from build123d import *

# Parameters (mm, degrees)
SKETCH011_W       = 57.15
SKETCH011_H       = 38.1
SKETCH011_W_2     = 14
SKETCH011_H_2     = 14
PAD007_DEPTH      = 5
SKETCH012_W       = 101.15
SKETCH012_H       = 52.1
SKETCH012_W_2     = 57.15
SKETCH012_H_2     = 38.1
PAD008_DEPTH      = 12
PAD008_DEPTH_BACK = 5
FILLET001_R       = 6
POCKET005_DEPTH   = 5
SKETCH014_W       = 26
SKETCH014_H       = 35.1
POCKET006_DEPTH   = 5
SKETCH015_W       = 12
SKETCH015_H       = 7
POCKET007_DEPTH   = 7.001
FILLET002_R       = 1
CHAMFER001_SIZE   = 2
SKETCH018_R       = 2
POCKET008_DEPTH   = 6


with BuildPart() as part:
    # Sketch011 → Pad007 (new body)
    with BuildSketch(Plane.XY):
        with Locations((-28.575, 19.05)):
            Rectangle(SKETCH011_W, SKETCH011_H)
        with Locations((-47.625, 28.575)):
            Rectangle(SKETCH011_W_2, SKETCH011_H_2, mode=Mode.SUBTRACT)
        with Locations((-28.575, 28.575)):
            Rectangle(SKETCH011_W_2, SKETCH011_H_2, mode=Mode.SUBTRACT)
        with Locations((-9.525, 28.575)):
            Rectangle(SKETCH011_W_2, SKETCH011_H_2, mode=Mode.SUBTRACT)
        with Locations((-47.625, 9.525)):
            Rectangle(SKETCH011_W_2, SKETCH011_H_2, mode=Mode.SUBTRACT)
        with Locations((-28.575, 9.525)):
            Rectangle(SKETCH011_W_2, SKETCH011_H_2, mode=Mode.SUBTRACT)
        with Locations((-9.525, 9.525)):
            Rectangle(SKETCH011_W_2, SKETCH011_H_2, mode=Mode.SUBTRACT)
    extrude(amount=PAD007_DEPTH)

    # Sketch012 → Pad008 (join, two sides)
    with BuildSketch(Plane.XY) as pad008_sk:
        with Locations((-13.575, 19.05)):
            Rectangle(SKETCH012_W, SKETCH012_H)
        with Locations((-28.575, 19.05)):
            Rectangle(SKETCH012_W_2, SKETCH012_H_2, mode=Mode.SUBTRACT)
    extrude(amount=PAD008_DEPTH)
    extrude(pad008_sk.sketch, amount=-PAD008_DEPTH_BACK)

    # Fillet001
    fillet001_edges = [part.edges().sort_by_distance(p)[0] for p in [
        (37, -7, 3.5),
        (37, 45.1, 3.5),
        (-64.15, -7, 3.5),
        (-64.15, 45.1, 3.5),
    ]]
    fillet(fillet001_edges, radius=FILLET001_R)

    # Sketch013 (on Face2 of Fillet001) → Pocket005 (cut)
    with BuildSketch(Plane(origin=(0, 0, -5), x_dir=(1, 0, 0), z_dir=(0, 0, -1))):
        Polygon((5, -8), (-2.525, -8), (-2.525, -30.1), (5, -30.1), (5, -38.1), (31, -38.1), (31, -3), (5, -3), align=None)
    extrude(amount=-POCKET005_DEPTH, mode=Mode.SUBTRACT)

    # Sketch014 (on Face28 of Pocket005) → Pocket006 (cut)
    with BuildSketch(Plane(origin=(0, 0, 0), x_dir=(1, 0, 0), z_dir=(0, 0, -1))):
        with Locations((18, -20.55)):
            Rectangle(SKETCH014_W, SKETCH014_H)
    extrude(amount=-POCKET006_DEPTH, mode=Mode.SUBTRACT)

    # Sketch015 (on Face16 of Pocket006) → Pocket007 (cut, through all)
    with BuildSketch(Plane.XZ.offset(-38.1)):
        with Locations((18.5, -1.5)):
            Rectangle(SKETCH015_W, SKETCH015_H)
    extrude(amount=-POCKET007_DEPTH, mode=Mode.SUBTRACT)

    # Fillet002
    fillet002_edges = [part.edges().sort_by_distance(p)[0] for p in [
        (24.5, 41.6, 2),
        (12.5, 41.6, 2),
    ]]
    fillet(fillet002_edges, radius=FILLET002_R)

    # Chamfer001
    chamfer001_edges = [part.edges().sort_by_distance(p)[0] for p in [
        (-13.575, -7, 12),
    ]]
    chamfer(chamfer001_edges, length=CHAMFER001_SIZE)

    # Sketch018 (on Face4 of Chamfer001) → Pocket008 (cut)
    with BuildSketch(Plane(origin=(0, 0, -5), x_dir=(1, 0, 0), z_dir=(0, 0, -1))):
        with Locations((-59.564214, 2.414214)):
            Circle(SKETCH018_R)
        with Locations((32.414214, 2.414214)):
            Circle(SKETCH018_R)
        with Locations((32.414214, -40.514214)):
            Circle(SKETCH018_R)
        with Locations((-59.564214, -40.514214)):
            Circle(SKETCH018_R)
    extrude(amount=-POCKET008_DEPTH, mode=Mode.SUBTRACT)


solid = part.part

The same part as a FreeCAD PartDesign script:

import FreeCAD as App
import Part
import Sketcher

V = App.Vector
Q = App.Units.Quantity


def edges_at(feature, points):
    """Names of the edges that pass closest to the given points."""
    edges = feature.Shape.Edges
    near = lambda p: min(range(len(edges)), key=lambda i: edges[i].distToShape(Part.Vertex(*p))[0])
    return sorted({f"Edge{near(p) + 1}" for p in points})

doc = App.newDocument("Part")
body = doc.addObject("PartDesign::Body", "Body")

# Sketch on XY plane
sketch1 = body.newObject("Sketcher::SketchObject", "Sketch")
sketch1.AttachmentSupport = (doc.getObject("XY_Plane"), [""])
sketch1.MapMode = "FlatFace"
sketch1.addGeometry([
    Part.LineSegment(V(-57, 38, 0), V(-57, 0, 0)),  # 0
    Part.LineSegment(V(-57, 0, 0), V(0, 0, 0)),  # 1
    Part.LineSegment(V(0, 0, 0), V(0, 38, 0)),  # 2
    Part.LineSegment(V(0, 38, 0), V(-57, 38, 0)),  # 3
    Part.LineSegment(V(-41, 3, 0), V(-55, 3, 0)),  # 4
    Part.LineSegment(V(-55, 3, 0), V(-55, 17, 0)),  # 5
    Part.LineSegment(V(-55, 17, 0), V(-41, 17, 0)),  # 6
    Part.LineSegment(V(-41, 17, 0), V(-41, 3, 0)),  # 7
    Part.LineSegment(V(-22, 3, 0), V(-36, 3, 0)),  # 8
    Part.LineSegment(V(-36, 3, 0), V(-36, 17, 0)),  # 9
    Part.LineSegment(V(-36, 17, 0), V(-22, 17, 0)),  # 10
    Part.LineSegment(V(-22, 17, 0), V(-22, 3, 0)),  # 11
    Part.LineSegment(V(-3, 3, 0), V(-17, 3, 0)),  # 12
    Part.LineSegment(V(-17, 3, 0), V(-17, 17, 0)),  # 13
    Part.LineSegment(V(-17, 17, 0), V(-3, 17, 0)),  # 14
    Part.LineSegment(V(-3, 17, 0), V(-3, 3, 0)),  # 15
    Part.LineSegment(V(-41, 22, 0), V(-55, 22, 0)),  # 16
    Part.LineSegment(V(-55, 22, 0), V(-55, 36, 0)),  # 17
    Part.LineSegment(V(-55, 36, 0), V(-41, 36, 0)),  # 18
    Part.LineSegment(V(-41, 36, 0), V(-41, 22, 0)),  # 19
    Part.LineSegment(V(-22, 22, 0), V(-36, 22, 0)),  # 20
    Part.LineSegment(V(-36, 22, 0), V(-36, 36, 0)),  # 21
    Part.LineSegment(V(-36, 36, 0), V(-22, 36, 0)),  # 22
    Part.LineSegment(V(-22, 36, 0), V(-22, 22, 0)),  # 23
    Part.LineSegment(V(-3, 22, 0), V(-17, 22, 0)),  # 24
    Part.LineSegment(V(-17, 22, 0), V(-17, 36, 0)),  # 25
    Part.LineSegment(V(-17, 36, 0), V(-3, 36, 0)),  # 26
    Part.LineSegment(V(-3, 36, 0), V(-3, 22, 0)),  # 27
], False)
sketch1.addConstraint([
    Sketcher.Constraint("Coincident", 0, 2, 1, 1),
    Sketcher.Constraint("Coincident", 1, 2, 2, 1),
    Sketcher.Constraint("Coincident", 2, 2, 3, 1),
    Sketcher.Constraint("Coincident", 3, 2, 0, 1),
    Sketcher.Constraint("Coincident", 4, 2, 5, 1),
    Sketcher.Constraint("Coincident", 5, 2, 6, 1),
    Sketcher.Constraint("Coincident", 6, 2, 7, 1),
    Sketcher.Constraint("Coincident", 7, 2, 4, 1),
    Sketcher.Constraint("Coincident", 8, 2, 9, 1),
    Sketcher.Constraint("Coincident", 9, 2, 10, 1),
    Sketcher.Constraint("Coincident", 10, 2, 11, 1),
    Sketcher.Constraint("Coincident", 11, 2, 8, 1),
    Sketcher.Constraint("Coincident", 12, 2, 13, 1),
    Sketcher.Constraint("Coincident", 13, 2, 14, 1),
    Sketcher.Constraint("Coincident", 14, 2, 15, 1),
    Sketcher.Constraint("Coincident", 15, 2, 12, 1),
    Sketcher.Constraint("Coincident", 16, 2, 17, 1),
    Sketcher.Constraint("Coincident", 17, 2, 18, 1),
    Sketcher.Constraint("Coincident", 18, 2, 19, 1),
    Sketcher.Constraint("Coincident", 19, 2, 16, 1),
    Sketcher.Constraint("Coincident", 20, 2, 21, 1),
    Sketcher.Constraint("Coincident", 21, 2, 22, 1),
    Sketcher.Constraint("Coincident", 22, 2, 23, 1),
    Sketcher.Constraint("Coincident", 23, 2, 20, 1),
    Sketcher.Constraint("Coincident", 24, 2, 25, 1),
    Sketcher.Constraint("Coincident", 25, 2, 26, 1),
    Sketcher.Constraint("Coincident", 26, 2, 27, 1),
    Sketcher.Constraint("Coincident", 27, 2, 24, 1),
    Sketcher.Constraint("Vertical", 0),
    Sketcher.Constraint("Horizontal", 1),
    Sketcher.Constraint("Vertical", 2),
    Sketcher.Constraint("Horizontal", 3),
    Sketcher.Constraint("Horizontal", 4),
    Sketcher.Constraint("Vertical", 5),
    Sketcher.Constraint("Horizontal", 6),
    Sketcher.Constraint("Vertical", 7),
    Sketcher.Constraint("Horizontal", 8),
    Sketcher.Constraint("Vertical", 9),
    Sketcher.Constraint("Horizontal", 10),
    Sketcher.Constraint("Vertical", 11),
    Sketcher.Constraint("Horizontal", 12),
    Sketcher.Constraint("Vertical", 13),
    Sketcher.Constraint("Horizontal", 14),
    Sketcher.Constraint("Vertical", 15),
    Sketcher.Constraint("Horizontal", 16),
    Sketcher.Constraint("Vertical", 17),
    Sketcher.Constraint("Horizontal", 18),
    Sketcher.Constraint("Vertical", 19),
    Sketcher.Constraint("Horizontal", 20),
    Sketcher.Constraint("Vertical", 21),
    Sketcher.Constraint("Horizontal", 22),
    Sketcher.Constraint("Vertical", 23),
    Sketcher.Constraint("Horizontal", 24),
    Sketcher.Constraint("Vertical", 25),
    Sketcher.Constraint("Horizontal", 26),
    Sketcher.Constraint("Vertical", 27),
    Sketcher.Constraint("Coincident", 1, 2, -1, 1),
    Sketcher.Constraint("Horizontal", 7, 2, 8, 2),
    Sketcher.Constraint("Horizontal", 6, 2, 9, 2),
    Sketcher.Constraint("Horizontal", 11, 2, 12, 2),
    Sketcher.Constraint("Horizontal", 10, 2, 13, 2),
    Sketcher.Constraint("Horizontal", 19, 2, 20, 2),
    Sketcher.Constraint("Horizontal", 18, 2, 21, 2),
    Sketcher.Constraint("Horizontal", 23, 2, 24, 2),
    Sketcher.Constraint("Horizontal", 22, 2, 25, 2),
    Sketcher.Constraint("Vertical", 5, 2, 16, 2),
    Sketcher.Constraint("Vertical", 7, 2, 18, 2),
    Sketcher.Constraint("Vertical", 9, 2, 20, 2),
    Sketcher.Constraint("Vertical", 11, 2, 22, 2),
    Sketcher.Constraint("Vertical", 13, 2, 24, 2),
    Sketcher.Constraint("Vertical", 15, 2, 26, 2),
    Sketcher.Constraint("Equal", 6, 8),
    Sketcher.Constraint("Equal", 10, 12),
    Sketcher.Constraint("Equal", 26, 5),
    Sketcher.Constraint("Equal", 15, 17),
    Sketcher.Constraint("DistanceX", 4, 2, 4, 1, Q("14 mm")),
    Sketcher.Constraint("DistanceY", 0, 2, 0, 1, Q("38.1 mm")),
    Sketcher.Constraint("DistanceX", 1, 1, 1, 2, Q("57.15 mm")),
    Sketcher.Constraint("DistanceX", 7, 2, 8, 2, Q("5.05 mm")),
    Sketcher.Constraint("DistanceX", 11, 2, 12, 2, Q("5.05 mm")),
    Sketcher.Constraint("DistanceY", 5, 2, 16, 2, Q("5.05 mm")),
    Sketcher.Constraint("DistanceX", 4, 2, -1, 1, Q("54.625 mm")),
    Sketcher.Constraint("DistanceY", -1, 1, 4, 2, Q("2.525 mm")),
])
pad1 = body.newObject("PartDesign::Pad", "Pad")
pad1.Profile = sketch1
pad1.Length = 5

# Sketch on XY plane
sketch2 = body.newObject("Sketcher::SketchObject", "Sketch001")
sketch2.AttachmentSupport = (doc.getObject("XY_Plane"), [""])
sketch2.MapMode = "FlatFace"
sketch2.addGeometry([
    Part.LineSegment(V(-64, 45, 0), V(-64, -7, 0)),  # 0
    Part.LineSegment(V(-64, -7, 0), V(37, -7, 0)),  # 1
    Part.LineSegment(V(37, -7, 0), V(37, 45, 0)),  # 2
    Part.LineSegment(V(37, 45, 0), V(-64, 45, 0)),  # 3
    Part.LineSegment(V(0, 0, 0), V(-57, 0, 0)),  # 4
    Part.LineSegment(V(-57, 0, 0), V(-57, 38, 0)),  # 5
    Part.LineSegment(V(-57, 38, 0), V(0, 38, 0)),  # 6
    Part.LineSegment(V(0, 38, 0), V(0, 0, 0)),  # 7
], False)
sketch2.addConstraint([
    Sketcher.Constraint("Coincident", 0, 2, 1, 1),
    Sketcher.Constraint("Coincident", 1, 2, 2, 1),
    Sketcher.Constraint("Coincident", 2, 2, 3, 1),
    Sketcher.Constraint("Coincident", 3, 2, 0, 1),
    Sketcher.Constraint("Coincident", 4, 2, 5, 1),
    Sketcher.Constraint("Coincident", 5, 2, 6, 1),
    Sketcher.Constraint("Coincident", 6, 2, 7, 1),
    Sketcher.Constraint("Coincident", 7, 2, 4, 1),
    Sketcher.Constraint("Vertical", 0),
    Sketcher.Constraint("Horizontal", 1),
    Sketcher.Constraint("Vertical", 2),
    Sketcher.Constraint("Horizontal", 3),
    Sketcher.Constraint("Horizontal", 4),
    Sketcher.Constraint("Vertical", 5),
    Sketcher.Constraint("Horizontal", 6),
    Sketcher.Constraint("Vertical", 7),
    Sketcher.Constraint("Coincident", 7, 2, -1, 1),
    Sketcher.Constraint("DistanceY", 0, 2, 0, 1, Q("52.1 mm")),
    Sketcher.Constraint("DistanceY", 5, 1, 5, 2, Q("38.1 mm")),
    Sketcher.Constraint("DistanceY", 0, 2, -1, 1, Q("7 mm")),
    Sketcher.Constraint("DistanceX", -1, 1, 1, 2, Q("37 mm")),
    Sketcher.Constraint("DistanceX", 0, 2, 4, 2, Q("7 mm")),
    Sketcher.Constraint("DistanceX", 1, 1, 1, 2, Q("101.15 mm")),
])
pad2 = body.newObject("PartDesign::Pad", "Pad001")
pad2.Profile = sketch2
pad2.Type = "TwoLengths"
pad2.Length = 12
pad2.Length2 = 5
doc.recompute()

fillet = body.newObject("PartDesign::Fillet", "Fillet")
fillet.Base = (pad2, edges_at(pad2, [
    (37, -7, 3.5),
    (37, 45.1, 3.5),
    (-64.15, -7, 3.5),
    (-64.15, 45.1, 3.5),
]))
fillet.Radius = 6

# Sketch on XY plane
sketch3 = body.newObject("Sketcher::SketchObject", "Sketch002")
sketch3.AttachmentSupport = (doc.getObject("XY_Plane"), [""])
sketch3.MapMode = "FlatFace"
sketch3.AttachmentOffset = App.Placement(V(0, 0, -5), App.Rotation())
sketch3.addGeometry([
    Part.LineSegment(V(5, 8, 0), V(-3, 8, 0)),  # 0
    Part.LineSegment(V(-3, 8, 0), V(-3, 30, 0)),  # 1
    Part.LineSegment(V(-3, 30, 0), V(5, 30, 0)),  # 2
    Part.LineSegment(V(5, 30, 0), V(5, 38, 0)),  # 3
    Part.LineSegment(V(5, 38, 0), V(31, 38, 0)),  # 4
    Part.LineSegment(V(31, 38, 0), V(31, 3, 0)),  # 5
    Part.LineSegment(V(31, 3, 0), V(5, 3, 0)),  # 6
    Part.LineSegment(V(5, 3, 0), V(5, 8, 0)),  # 7
], False)
sketch3.addConstraint([
    Sketcher.Constraint("Coincident", 0, 2, 1, 1),
    Sketcher.Constraint("Coincident", 1, 2, 2, 1),
    Sketcher.Constraint("Coincident", 2, 2, 3, 1),
    Sketcher.Constraint("Coincident", 3, 2, 4, 1),
    Sketcher.Constraint("Coincident", 4, 2, 5, 1),
    Sketcher.Constraint("Coincident", 5, 2, 6, 1),
    Sketcher.Constraint("Coincident", 6, 2, 7, 1),
    Sketcher.Constraint("Coincident", 7, 2, 0, 1),
    Sketcher.Constraint("Horizontal", 0),
    Sketcher.Constraint("Vertical", 1),
    Sketcher.Constraint("Horizontal", 2),
    Sketcher.Constraint("Vertical", 3),
    Sketcher.Constraint("Horizontal", 4),
    Sketcher.Constraint("Vertical", 5),
    Sketcher.Constraint("Horizontal", 6),
    Sketcher.Constraint("Vertical", 7),
    Sketcher.Constraint("Vertical", 3, 2, 6, 2),
    Sketcher.Constraint("DistanceX", 4, 1, 4, 2, Q("26 mm")),
    Sketcher.Constraint("DistanceY", 3, 1, 3, 2, Q("8 mm")),
    Sketcher.Constraint("DistanceY", 7, 1, 7, 2, Q("5 mm")),
    Sketcher.Constraint("DistanceY", 1, 1, 1, 2, Q("22.1 mm")),
    Sketcher.Constraint("DistanceY", -1, 1, 0, 2, Q("8 mm")),
    Sketcher.Constraint("DistanceX", -1, 1, 2, 2, Q("5 mm")),
    Sketcher.Constraint("DistanceX", 0, 2, 0, 1, Q("7.525 mm")),
])
pocket1 = body.newObject("PartDesign::Pocket", "Pocket")
pocket1.Profile = sketch3
pocket1.Length = 5
pocket1.Reversed = True

# Sketch on XY plane
sketch4 = body.newObject("Sketcher::SketchObject", "Sketch003")
sketch4.AttachmentSupport = (doc.getObject("XY_Plane"), [""])
sketch4.MapMode = "FlatFace"
sketch4.addGeometry([
    Part.LineSegment(V(5, 3, 0), V(5, 38, 0)),
    Part.LineSegment(V(5, 38, 0), V(31, 38, 0)),
    Part.LineSegment(V(31, 38, 0), V(31, 3, 0)),
    Part.LineSegment(V(31, 3, 0), V(5, 3, 0)),
], False)
sketch4.addConstraint([
    Sketcher.Constraint("Coincident", 0, 2, 1, 1),
    Sketcher.Constraint("Coincident", 1, 2, 2, 1),
    Sketcher.Constraint("Coincident", 2, 2, 3, 1),
    Sketcher.Constraint("Coincident", 3, 2, 0, 1),
    Sketcher.Constraint("Vertical", 0),
    Sketcher.Constraint("Horizontal", 1),
    Sketcher.Constraint("Vertical", 2),
    Sketcher.Constraint("Horizontal", 3),
    Sketcher.Constraint("DistanceX", 1, 1, 1, 2, Q("26 mm")),
    Sketcher.Constraint("DistanceY", 0, 1, 0, 2, Q("35.1 mm")),
    Sketcher.Constraint("DistanceX", -1, 1, 0, 2, Q("5 mm")),
    Sketcher.Constraint("DistanceY", -1, 1, 2, 2, Q("3 mm")),
])
pocket2 = body.newObject("PartDesign::Pocket", "Pocket001")
pocket2.Profile = sketch4
pocket2.Length = 5
pocket2.Reversed = True

# Sketch on XZ plane
sketch5 = body.newObject("Sketcher::SketchObject", "Sketch004")
sketch5.AttachmentSupport = (doc.getObject("XZ_Plane"), [""])
sketch5.MapMode = "FlatFace"
sketch5.AttachmentOffset = App.Placement(V(0, 0, -38.1), App.Rotation())
sketch5.addGeometry([
    Part.LineSegment(V(12, 2, 0), V(12, -5, 0)),
    Part.LineSegment(V(12, -5, 0), V(24, -5, 0)),
    Part.LineSegment(V(24, -5, 0), V(24, 2, 0)),
    Part.LineSegment(V(24, 2, 0), V(12, 2, 0)),
], False)
sketch5.addConstraint([
    Sketcher.Constraint("Coincident", 0, 2, 1, 1),
    Sketcher.Constraint("Coincident", 1, 2, 2, 1),
    Sketcher.Constraint("Coincident", 2, 2, 3, 1),
    Sketcher.Constraint("Coincident", 3, 2, 0, 1),
    Sketcher.Constraint("Vertical", 0),
    Sketcher.Constraint("Horizontal", 1),
    Sketcher.Constraint("Vertical", 2),
    Sketcher.Constraint("Horizontal", 3),
    Sketcher.Constraint("DistanceX", 1, 1, 1, 2, Q("12 mm")),
    Sketcher.Constraint("DistanceY", 0, 2, 0, 1, Q("7 mm")),
    Sketcher.Constraint("DistanceY", 0, 2, -1, 1, Q("5 mm")),
    Sketcher.Constraint("DistanceX", -1, 1, 0, 2, Q("12.5 mm")),
])
pocket3 = body.newObject("PartDesign::Pocket", "Pocket002")
pocket3.Profile = sketch5
pocket3.Type = "ThroughAll"
doc.recompute()

fillet2 = body.newObject("PartDesign::Fillet", "Fillet001")
fillet2.Base = (pocket3, edges_at(pocket3, [(24.5, 41.6, 2), (12.5, 41.6, 2)]))
fillet2.Radius = 1
doc.recompute()

chamfer = body.newObject("PartDesign::Chamfer", "Chamfer")
chamfer.Base = (fillet2, edges_at(fillet2, [(-13.575, -7, 12)]))
chamfer.Size = 2

# Sketch on XY plane
sketch6 = body.newObject("Sketcher::SketchObject", "Sketch005")
sketch6.AttachmentSupport = (doc.getObject("XY_Plane"), [""])
sketch6.MapMode = "FlatFace"
sketch6.AttachmentOffset = App.Placement(V(0, 0, -5), App.Rotation())
sketch6.addGeometry([
    Part.Circle(V(-59.6, -2.4, 0), V(0, 0, 1), 2),
    Part.Circle(V(32.4, -2.4, 0), V(0, 0, 1), 2),
    Part.Circle(V(32.4, 40.5, 0), V(0, 0, 1), 2),
    Part.Circle(V(-59.6, 40.5, 0), V(0, 0, 1), 2),
], False)
sketch6.addConstraint([
    Sketcher.Constraint("Equal", 0, 1),
    Sketcher.Constraint("Equal", 1, 2),
    Sketcher.Constraint("Equal", 2, 3),
    Sketcher.Constraint("Horizontal", 0, 3, 1, 3),
    Sketcher.Constraint("Horizontal", 2, 3, 3, 3),
    Sketcher.Constraint("Vertical", 1, 3, 2, 3),
    Sketcher.Constraint("Vertical", 0, 3, 3, 3),
    Sketcher.Constraint("Diameter", 0, Q("4 mm")),
    Sketcher.Constraint("DistanceX", 0, 3, 1, 3, Q("91.978428 mm")),
    Sketcher.Constraint("DistanceY", 1, 3, 2, 3, Q("42.928428 mm")),
    Sketcher.Constraint("DistanceX", 0, 3, -1, 1, Q("59.564214 mm")),
    Sketcher.Constraint("DistanceY", 0, 3, -1, 1, Q("2.414214 mm")),
])
pocket4 = body.newObject("PartDesign::Pocket", "Pocket003")
pocket4.Profile = sketch6
pocket4.Length = 6
pocket4.Reversed = True

doc.recompute()
